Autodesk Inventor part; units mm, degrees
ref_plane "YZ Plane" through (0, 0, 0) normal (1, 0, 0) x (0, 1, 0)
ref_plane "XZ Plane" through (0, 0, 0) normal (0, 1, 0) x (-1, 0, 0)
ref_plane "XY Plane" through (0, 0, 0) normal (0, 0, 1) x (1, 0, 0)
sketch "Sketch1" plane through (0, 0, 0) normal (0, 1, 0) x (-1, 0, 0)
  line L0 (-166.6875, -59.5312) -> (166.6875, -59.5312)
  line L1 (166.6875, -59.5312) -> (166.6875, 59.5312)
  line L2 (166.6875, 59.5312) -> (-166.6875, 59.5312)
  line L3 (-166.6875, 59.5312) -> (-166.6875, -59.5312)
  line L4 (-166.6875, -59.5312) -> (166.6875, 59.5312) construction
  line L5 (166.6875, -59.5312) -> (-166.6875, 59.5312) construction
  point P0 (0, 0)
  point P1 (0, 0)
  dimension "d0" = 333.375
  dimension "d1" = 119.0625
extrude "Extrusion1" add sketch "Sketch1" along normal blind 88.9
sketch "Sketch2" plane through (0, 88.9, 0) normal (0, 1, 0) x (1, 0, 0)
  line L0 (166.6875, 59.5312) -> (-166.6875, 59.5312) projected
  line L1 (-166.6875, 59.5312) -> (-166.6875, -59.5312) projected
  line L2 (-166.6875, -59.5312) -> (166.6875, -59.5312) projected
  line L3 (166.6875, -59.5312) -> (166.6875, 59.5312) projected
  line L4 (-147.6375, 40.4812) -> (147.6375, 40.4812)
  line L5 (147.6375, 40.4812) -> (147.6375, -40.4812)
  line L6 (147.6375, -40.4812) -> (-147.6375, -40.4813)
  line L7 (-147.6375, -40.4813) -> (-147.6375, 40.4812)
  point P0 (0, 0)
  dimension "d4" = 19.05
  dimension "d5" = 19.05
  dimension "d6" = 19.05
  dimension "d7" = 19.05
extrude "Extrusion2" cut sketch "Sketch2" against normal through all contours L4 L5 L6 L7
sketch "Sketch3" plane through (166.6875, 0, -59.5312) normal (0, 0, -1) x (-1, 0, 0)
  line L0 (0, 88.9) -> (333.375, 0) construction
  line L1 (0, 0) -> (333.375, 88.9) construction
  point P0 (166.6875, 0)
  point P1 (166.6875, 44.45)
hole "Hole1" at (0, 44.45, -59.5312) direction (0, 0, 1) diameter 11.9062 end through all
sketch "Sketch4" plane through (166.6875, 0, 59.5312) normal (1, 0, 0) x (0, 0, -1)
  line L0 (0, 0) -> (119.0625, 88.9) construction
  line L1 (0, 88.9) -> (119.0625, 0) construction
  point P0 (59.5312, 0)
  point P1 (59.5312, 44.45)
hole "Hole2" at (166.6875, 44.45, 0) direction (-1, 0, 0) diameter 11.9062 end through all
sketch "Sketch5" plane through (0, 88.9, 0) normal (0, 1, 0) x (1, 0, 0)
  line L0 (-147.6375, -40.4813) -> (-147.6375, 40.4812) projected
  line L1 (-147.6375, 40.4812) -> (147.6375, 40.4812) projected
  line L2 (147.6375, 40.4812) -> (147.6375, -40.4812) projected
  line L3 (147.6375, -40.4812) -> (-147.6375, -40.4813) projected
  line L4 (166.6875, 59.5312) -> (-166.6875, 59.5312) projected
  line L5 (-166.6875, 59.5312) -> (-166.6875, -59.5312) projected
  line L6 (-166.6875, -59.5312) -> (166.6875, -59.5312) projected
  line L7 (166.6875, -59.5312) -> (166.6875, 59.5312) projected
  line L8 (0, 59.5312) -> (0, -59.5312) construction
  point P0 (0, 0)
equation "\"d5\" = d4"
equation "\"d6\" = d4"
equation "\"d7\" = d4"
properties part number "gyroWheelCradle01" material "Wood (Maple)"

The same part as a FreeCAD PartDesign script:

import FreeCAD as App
import Part
import Sketcher

V = App.Vector
Q = App.Units.Quantity

doc = App.newDocument("Part")
params = doc.addObject("Spreadsheet::Sheet", "Params")
for row, (alias, value) in enumerate([
    ("sketch1_width", "13.125 in"),
    ("sketch1_height", "4.6875 in"),
    ("pad1_length", "3.5 in"),
    ("sketch2_width", "11.625 in"),
    ("sketch2_height", "3.1875 in"),
    ("sketch3_diameter", "0.468748 in"),
    ("hole_diameter", "0.468748 in"),
    ("sketch4_diameter", "0.468748 in"),
    ("hole2_diameter", "0.468748 in"),
], start=1):
    params.set(f"A{row}", alias)
    params.set(f"B{row}", "=" + value)
    params.setAlias(f"B{row}", alias)

body = doc.addObject("PartDesign::Body", "Body")

# Sketch on XZ plane
sketch1 = doc.addObject("Sketcher::SketchObject", "Sketch")
body.addObject(sketch1)
sketch1.AttachmentSupport = (doc.XZ_Plane, [""])
sketch1.MapMode = "FlatFace"
sketch1.addGeometry(Part.LineSegment(V(166.6875, 59.5312, 0), V(166.6875, -59.5312, 0)), False)
sketch1.addGeometry(Part.LineSegment(V(166.6875, -59.5312, 0), V(-166.6875, -59.5312, 0)), False)
sketch1.addGeometry(Part.LineSegment(V(-166.6875, -59.5312, 0), V(-166.6875, 59.5312, 0)), False)
sketch1.addGeometry(Part.LineSegment(V(-166.6875, 59.5312, 0), V(166.6875, 59.5312, 0)), False)
sketch1.addConstraint(Sketcher.Constraint("Coincident", 0, 2, 1, 1))
sketch1.addConstraint(Sketcher.Constraint("Coincident", 1, 2, 2, 1))
sketch1.addConstraint(Sketcher.Constraint("Coincident", 2, 2, 3, 1))
sketch1.addConstraint(Sketcher.Constraint("Coincident", 3, 2, 0, 1))
sketch1.addConstraint(Sketcher.Constraint("Vertical", 0))
sketch1.addConstraint(Sketcher.Constraint("Horizontal", 1))
sketch1.addConstraint(Sketcher.Constraint("Vertical", 2))
sketch1.addConstraint(Sketcher.Constraint("Horizontal", 3))
sketch1.addConstraint(Sketcher.Constraint("Symmetric", 0, 2, 2, 2, -1, 1))
sketch1.addConstraint(Sketcher.Constraint("DistanceX", 1, 2, 1, 1, Q("13.125 in")))
sketch1.addConstraint(Sketcher.Constraint("DistanceY", 0, 2, 0, 1, Q("4.6875 in")))
sketch1.setExpression("Constraints[9]", "Params.sketch1_width")
sketch1.setExpression("Constraints[10]", "Params.sketch1_height")
pad1 = doc.addObject("PartDesign::Pad", "Pad")
body.addObject(pad1)
pad1.Profile = sketch1
pad1.setExpression("Length", "Params.pad1_length")
pad1.Reversed = True

# Sketch on XZ plane
sketch2 = doc.addObject("Sketcher::SketchObject", "Sketch001")
body.addObject(sketch2)
sketch2.AttachmentSupport = (doc.XZ_Plane, [""])
sketch2.MapMode = "FlatFace"
sketch2.AttachmentOffset = App.Placement(V(0, 0, -3.5 * 25.4), App.Rotation())
sketch2.addGeometry(Part.LineSegment(V(147.6375, -40.4812, 0), V(-147.6375, -40.4812, 0)), False)
sketch2.addGeometry(Part.LineSegment(V(-147.6375, -40.4812, 0), V(-147.6375, 40.4813, 0)), False)
sketch2.addGeometry(Part.LineSegment(V(-147.6375, 40.4813, 0), V(147.6375, 40.4812, 0)), False)
sketch2.addGeometry(Part.LineSegment(V(147.6375, 40.4812, 0), V(147.6375, -40.4812, 0)), False)
sketch2.addConstraint(Sketcher.Constraint("Coincident", 0, 2, 1, 1))
sketch2.addConstraint(Sketcher.Constraint("Coincident", 1, 2, 2, 1))
sketch2.addConstraint(Sketcher.Constraint("Coincident", 2, 2, 3, 1))
sketch2.addConstraint(Sketcher.Constraint("Coincident", 3, 2, 0, 1))
sketch2.addConstraint(Sketcher.Constraint("Horizontal", 0))
sketch2.addConstraint(Sketcher.Constraint("Vertical", 1))
sketch2.addConstraint(Sketcher.Constraint("Horizontal", 2))
sketch2.addConstraint(Sketcher.Constraint("Vertical", 3))
sketch2.addConstraint(Sketcher.Constraint("Symmetric", 0, 2, 2, 2, -1, 1))
sketch2.addConstraint(Sketcher.Constraint("DistanceX", 0, 2, 0, 1, Q("11.625 in")))
sketch2.addConstraint(Sketcher.Constraint("DistanceY", 1, 1, 1, 2, Q("3.1875 in")))
sketch2.setExpression("Constraints[9]", "Params.sketch2_width")
sketch2.setExpression("Constraints[10]", "Params.sketch2_height")
pocket1 = doc.addObject("PartDesign::Pocket", "Pocket")
body.addObject(pocket1)
pocket1.Profile = sketch2
pocket1.Type = "ThroughAll"
pocket1.Reversed = True

# Sketch on XY plane
sketch3 = doc.addObject("Sketcher::SketchObject", "Sketch002")
body.addObject(sketch3)
sketch3.AttachmentSupport = (doc.XY_Plane, [""])
sketch3.MapMode = "FlatFace"
sketch3.AttachmentOffset = App.Placement(V(0, 0, -2.343748 * 25.4), App.Rotation())
sketch3.addGeometry(Part.Circle(V(0, 44.45, 0), V(0, 0, 1), 5.9531), False)
sketch3.addConstraint(Sketcher.Constraint("PointOnObject", 0, 3, -2))
sketch3.addConstraint(Sketcher.Constraint("Diameter", 0, Q("0.468748 in")))
sketch3.addConstraint(Sketcher.Constraint("DistanceY", -1, 1, 0, 3, Q("1.75 in")))
sketch3.setExpression("Constraints[1]", "Params.sketch3_diameter")
doc.recompute()
hole = doc.addObject("PartDesign::Hole", "Hole")
body.addObject(hole)
hole.Profile = sketch3
hole.ThreadType = "None"
hole.setExpression("Diameter", "Params.hole_diameter")
hole.DepthType = "ThroughAll"
hole.Reversed = True

# Sketch on YZ plane
sketch4 = doc.addObject("Sketcher::SketchObject", "Sketch003")
body.addObject(sketch4)
sketch4.AttachmentSupport = (doc.YZ_Plane, [""])
sketch4.MapMode = "FlatFace"
sketch4.AttachmentOffset = App.Placement(V(0, 0, 6.5625 * 25.4), App.Rotation())
sketch4.addGeometry(Part.Circle(V(44.45, 0, 0), V(0, 0, 1), 5.9531), False)
sketch4.addConstraint(Sketcher.Constraint("PointOnObject", 0, 3, -1))
sketch4.addConstraint(Sketcher.Constraint("Diameter", 0, Q("0.468748 in")))
sketch4.addConstraint(Sketcher.Constraint("DistanceX", -1, 1, 0, 3, Q("1.75 in")))
sketch4.setExpression("Constraints[1]", "Params.sketch4_diameter")
doc.recompute()
hole2 = doc.addObject("PartDesign::Hole", "Hole001")
body.addObject(hole2)
hole2.Profile = sketch4
hole2.ThreadType = "None"
hole2.setExpression("Diameter", "Params.hole2_diameter")
hole2.DepthType = "ThroughAll"

doc.recompute()
